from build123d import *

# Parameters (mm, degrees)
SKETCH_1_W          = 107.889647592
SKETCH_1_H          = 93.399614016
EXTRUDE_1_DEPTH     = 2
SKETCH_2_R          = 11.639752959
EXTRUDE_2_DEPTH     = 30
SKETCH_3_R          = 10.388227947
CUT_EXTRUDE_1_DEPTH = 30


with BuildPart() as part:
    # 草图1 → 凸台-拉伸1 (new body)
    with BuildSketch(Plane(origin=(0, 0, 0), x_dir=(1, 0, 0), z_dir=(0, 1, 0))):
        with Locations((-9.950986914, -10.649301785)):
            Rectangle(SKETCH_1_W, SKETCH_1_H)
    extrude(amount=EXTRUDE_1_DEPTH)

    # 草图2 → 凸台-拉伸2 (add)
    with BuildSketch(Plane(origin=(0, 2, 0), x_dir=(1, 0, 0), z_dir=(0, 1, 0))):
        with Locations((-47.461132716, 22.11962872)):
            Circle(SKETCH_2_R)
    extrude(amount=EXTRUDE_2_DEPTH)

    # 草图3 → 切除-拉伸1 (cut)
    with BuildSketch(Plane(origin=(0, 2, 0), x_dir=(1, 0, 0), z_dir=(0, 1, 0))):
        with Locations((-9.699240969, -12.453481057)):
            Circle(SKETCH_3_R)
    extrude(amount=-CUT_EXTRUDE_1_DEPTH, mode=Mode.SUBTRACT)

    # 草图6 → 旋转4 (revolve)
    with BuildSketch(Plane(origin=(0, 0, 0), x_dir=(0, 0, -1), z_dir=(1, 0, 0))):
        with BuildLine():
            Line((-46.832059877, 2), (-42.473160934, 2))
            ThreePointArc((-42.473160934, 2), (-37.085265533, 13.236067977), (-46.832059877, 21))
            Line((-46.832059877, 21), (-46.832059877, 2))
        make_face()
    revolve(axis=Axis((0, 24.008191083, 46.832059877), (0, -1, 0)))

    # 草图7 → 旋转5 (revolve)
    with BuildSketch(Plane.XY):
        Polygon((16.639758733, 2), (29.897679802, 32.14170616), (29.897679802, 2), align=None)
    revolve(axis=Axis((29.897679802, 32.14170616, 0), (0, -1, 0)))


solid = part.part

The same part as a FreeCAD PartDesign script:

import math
import FreeCAD as App
import Part
import Sketcher

V = App.Vector
Q = App.Units.Quantity

doc = App.newDocument("Part")
body = doc.addObject("PartDesign::Body", "Body")

# Sketch on XZ plane
sketch1 = body.newObject("Sketcher::SketchObject", "Sketch")
sketch1.AttachmentSupport = (doc.getObject("XZ_Plane"), [""])
sketch1.MapMode = "FlatFace"
sketch1.addGeometry([
    Part.LineSegment(V(-63.895811, -36.050505, 0), V(-63.895811, 57.349109, 0)),
    Part.LineSegment(V(-63.895811, 57.349109, 0), V(43.993837, 57.349109, 0)),
    Part.LineSegment(V(43.993837, 57.349109, 0), V(43.993837, -36.050505, 0)),
    Part.LineSegment(V(43.993837, -36.050505, 0), V(-63.895811, -36.050505, 0)),
], False)
sketch1.addConstraint([
    Sketcher.Constraint("Coincident", 0, 2, 1, 1),
    Sketcher.Constraint("Coincident", 1, 2, 2, 1),
    Sketcher.Constraint("Coincident", 2, 2, 3, 1),
    Sketcher.Constraint("Coincident", 3, 2, 0, 1),
    Sketcher.Constraint("Vertical", 0),
    Sketcher.Constraint("Horizontal", 1),
    Sketcher.Constraint("Vertical", 2),
    Sketcher.Constraint("Horizontal", 3),
    Sketcher.Constraint("DistanceX", 1, 1, 1, 2, Q("107.889648 mm")),
    Sketcher.Constraint("DistanceY", 0, 1, 0, 2, Q("93.399614 mm")),
    Sketcher.Constraint("DistanceX", 0, 2, -1, 1, Q("63.895811 mm")),
    Sketcher.Constraint("DistanceY", -1, 1, 0, 2, Q("57.349109 mm")),
])
pad1 = body.newObject("PartDesign::Pad", "Pad")
pad1.Profile = sketch1
pad1.Length = 2
pad1.Reversed = True

# Sketch on XZ plane
sketch2 = body.newObject("Sketcher::SketchObject", "Sketch001")
sketch2.AttachmentSupport = (doc.getObject("XZ_Plane"), [""])
sketch2.MapMode = "FlatFace"
sketch2.AttachmentOffset = App.Placement(V(0, 0, -2), App.Rotation())
sketch2.addGeometry(Part.Circle(V(-47.461133, -22.119629, 0), V(0, 0, 1), 11.639753), False)
sketch2.addConstraint([
    Sketcher.Constraint("Diameter", 0, Q("23.279506 mm")),
    Sketcher.Constraint("DistanceY", 0, 3, -1, 1, Q("22.119629 mm")),
    Sketcher.Constraint("DistanceX", 0, 3, -1, 1, Q("47.461133 mm")),
])
pad2 = body.newObject("PartDesign::Pad", "Pad001")
pad2.Profile = sketch2
pad2.Length = 30
pad2.Reversed = True

# Sketch on XZ plane
sketch3 = body.newObject("Sketcher::SketchObject", "Sketch002")
sketch3.AttachmentSupport = (doc.getObject("XZ_Plane"), [""])
sketch3.MapMode = "FlatFace"
sketch3.AttachmentOffset = App.Placement(V(0, 0, -2), App.Rotation())
sketch3.addGeometry(Part.Circle(V(-9.699241, 12.453481, 0), V(0, 0, 1), 10.388228), False)
sketch3.addConstraint([
    Sketcher.Constraint("Diameter", 0, Q("20.776456 mm")),
    Sketcher.Constraint("DistanceX", 0, 3, -1, 1, Q("9.699241 mm")),
    Sketcher.Constraint("DistanceY", -1, 1, 0, 3, Q("12.453481 mm")),
])
pocket1 = body.newObject("PartDesign::Pocket", "Pocket")
pocket1.Profile = sketch3
pocket1.Length = 30
pocket1.Reversed = True

# Sketch on YZ plane
sketch4 = body.newObject("Sketcher::SketchObject", "Sketch003")
sketch4.AttachmentSupport = (doc.getObject("YZ_Plane"), [""])
sketch4.MapMode = "FlatFace"
sketch4.addGeometry([
    Part.LineSegment(V(2, 46.83206, 0), V(2, 42.473161, 0)),
    Part.ArcOfCircle(Part.Circle(V(11, 46.83206, 0), V(0, 0, 1), 10), math.radians(-154.158067), math.radians(0)),
    Part.LineSegment(V(21, 46.83206, 0), V(2, 46.83206, 0)),
], False)
sketch4.addGeometry(Part.LineSegment(V(21, 46.83206, 0), V(2, 46.83206, 0)), True)  # axis
sketch4.addConstraint([
    Sketcher.Constraint("Coincident", 0, 2, 1, 1),
    Sketcher.Constraint("Coincident", 1, 2, 2, 1),
    Sketcher.Constraint("Coincident", 2, 2, 0, 1),
    Sketcher.Constraint("Vertical", 0),
    Sketcher.Constraint("Horizontal", 2),
    Sketcher.Constraint("Horizontal", 3),
    Sketcher.Constraint("Coincident", 3, 1, 1, 2),
    Sketcher.Constraint("Vertical", 0, 2, 3, 2),
    Sketcher.Constraint("Radius", 1, Q("10 mm")),
    Sketcher.Constraint("DistanceX", 2, 2, 2, 1, Q("19 mm")),
    Sketcher.Constraint("DistanceX", -1, 1, 1, 3, Q("11 mm")),
    Sketcher.Constraint("DistanceY", 0, 2, 0, 1, Q("4.358899 mm")),
    Sketcher.Constraint("DistanceY", -1, 1, 1, 3, Q("46.83206 mm")),
])
revolution = body.newObject("PartDesign::Revolution", "Revolution")
revolution.Profile = sketch4
revolution.ReferenceAxis = (sketch4, ["Axis0"])
revolution.Angle = 360

# Sketch on XY plane
sketch5 = body.newObject("Sketcher::SketchObject", "Sketch004")
sketch5.AttachmentSupport = (doc.getObject("XY_Plane"), [""])
sketch5.MapMode = "FlatFace"
sketch5.addGeometry([
    Part.LineSegment(V(29.89768, 32.141706, 0), V(16.639759, 2, 0)),
    Part.LineSegment(V(16.639759, 2, 0), V(29.89768, 2, 0)),
    Part.LineSegment(V(29.89768, 2, 0), V(29.89768, 32.141706, 0)),
], False)
sketch5.addGeometry(Part.LineSegment(V(29.89768, 32.141706, 0), V(29.89768, 2, 0)), True)  # axis
sketch5.addConstraint([
    Sketcher.Constraint("Coincident", 0, 2, 1, 1),
    Sketcher.Constraint("Coincident", 1, 2, 2, 1),
    Sketcher.Constraint("Coincident", 2, 2, 0, 1),
    Sketcher.Constraint("Horizontal", 1),
    Sketcher.Constraint("Vertical", 2),
    Sketcher.Constraint("Vertical", 3),
    Sketcher.Constraint("Coincident", 3, 1, 2, 2),
    Sketcher.Constraint("Horizontal", 0, 2, 3, 2),
    Sketcher.Constraint("DistanceY", -1, 1, 0, 2, Q("2 mm")),
    Sketcher.Constraint("DistanceX", 1, 1, 1, 2, Q("13.257921 mm")),
    Sketcher.Constraint("DistanceY", 2, 1, 2, 2, Q("30.141706 mm")),
    Sketcher.Constraint("DistanceX", -1, 1, 0, 2, Q("16.639759 mm")),
])
revolution2 = body.newObject("PartDesign::Revolution", "Revolution001")
revolution2.Profile = sketch5
revolution2.ReferenceAxis = (sketch5, ["Axis0"])
revolution2.Angle = 360

doc.recompute()
